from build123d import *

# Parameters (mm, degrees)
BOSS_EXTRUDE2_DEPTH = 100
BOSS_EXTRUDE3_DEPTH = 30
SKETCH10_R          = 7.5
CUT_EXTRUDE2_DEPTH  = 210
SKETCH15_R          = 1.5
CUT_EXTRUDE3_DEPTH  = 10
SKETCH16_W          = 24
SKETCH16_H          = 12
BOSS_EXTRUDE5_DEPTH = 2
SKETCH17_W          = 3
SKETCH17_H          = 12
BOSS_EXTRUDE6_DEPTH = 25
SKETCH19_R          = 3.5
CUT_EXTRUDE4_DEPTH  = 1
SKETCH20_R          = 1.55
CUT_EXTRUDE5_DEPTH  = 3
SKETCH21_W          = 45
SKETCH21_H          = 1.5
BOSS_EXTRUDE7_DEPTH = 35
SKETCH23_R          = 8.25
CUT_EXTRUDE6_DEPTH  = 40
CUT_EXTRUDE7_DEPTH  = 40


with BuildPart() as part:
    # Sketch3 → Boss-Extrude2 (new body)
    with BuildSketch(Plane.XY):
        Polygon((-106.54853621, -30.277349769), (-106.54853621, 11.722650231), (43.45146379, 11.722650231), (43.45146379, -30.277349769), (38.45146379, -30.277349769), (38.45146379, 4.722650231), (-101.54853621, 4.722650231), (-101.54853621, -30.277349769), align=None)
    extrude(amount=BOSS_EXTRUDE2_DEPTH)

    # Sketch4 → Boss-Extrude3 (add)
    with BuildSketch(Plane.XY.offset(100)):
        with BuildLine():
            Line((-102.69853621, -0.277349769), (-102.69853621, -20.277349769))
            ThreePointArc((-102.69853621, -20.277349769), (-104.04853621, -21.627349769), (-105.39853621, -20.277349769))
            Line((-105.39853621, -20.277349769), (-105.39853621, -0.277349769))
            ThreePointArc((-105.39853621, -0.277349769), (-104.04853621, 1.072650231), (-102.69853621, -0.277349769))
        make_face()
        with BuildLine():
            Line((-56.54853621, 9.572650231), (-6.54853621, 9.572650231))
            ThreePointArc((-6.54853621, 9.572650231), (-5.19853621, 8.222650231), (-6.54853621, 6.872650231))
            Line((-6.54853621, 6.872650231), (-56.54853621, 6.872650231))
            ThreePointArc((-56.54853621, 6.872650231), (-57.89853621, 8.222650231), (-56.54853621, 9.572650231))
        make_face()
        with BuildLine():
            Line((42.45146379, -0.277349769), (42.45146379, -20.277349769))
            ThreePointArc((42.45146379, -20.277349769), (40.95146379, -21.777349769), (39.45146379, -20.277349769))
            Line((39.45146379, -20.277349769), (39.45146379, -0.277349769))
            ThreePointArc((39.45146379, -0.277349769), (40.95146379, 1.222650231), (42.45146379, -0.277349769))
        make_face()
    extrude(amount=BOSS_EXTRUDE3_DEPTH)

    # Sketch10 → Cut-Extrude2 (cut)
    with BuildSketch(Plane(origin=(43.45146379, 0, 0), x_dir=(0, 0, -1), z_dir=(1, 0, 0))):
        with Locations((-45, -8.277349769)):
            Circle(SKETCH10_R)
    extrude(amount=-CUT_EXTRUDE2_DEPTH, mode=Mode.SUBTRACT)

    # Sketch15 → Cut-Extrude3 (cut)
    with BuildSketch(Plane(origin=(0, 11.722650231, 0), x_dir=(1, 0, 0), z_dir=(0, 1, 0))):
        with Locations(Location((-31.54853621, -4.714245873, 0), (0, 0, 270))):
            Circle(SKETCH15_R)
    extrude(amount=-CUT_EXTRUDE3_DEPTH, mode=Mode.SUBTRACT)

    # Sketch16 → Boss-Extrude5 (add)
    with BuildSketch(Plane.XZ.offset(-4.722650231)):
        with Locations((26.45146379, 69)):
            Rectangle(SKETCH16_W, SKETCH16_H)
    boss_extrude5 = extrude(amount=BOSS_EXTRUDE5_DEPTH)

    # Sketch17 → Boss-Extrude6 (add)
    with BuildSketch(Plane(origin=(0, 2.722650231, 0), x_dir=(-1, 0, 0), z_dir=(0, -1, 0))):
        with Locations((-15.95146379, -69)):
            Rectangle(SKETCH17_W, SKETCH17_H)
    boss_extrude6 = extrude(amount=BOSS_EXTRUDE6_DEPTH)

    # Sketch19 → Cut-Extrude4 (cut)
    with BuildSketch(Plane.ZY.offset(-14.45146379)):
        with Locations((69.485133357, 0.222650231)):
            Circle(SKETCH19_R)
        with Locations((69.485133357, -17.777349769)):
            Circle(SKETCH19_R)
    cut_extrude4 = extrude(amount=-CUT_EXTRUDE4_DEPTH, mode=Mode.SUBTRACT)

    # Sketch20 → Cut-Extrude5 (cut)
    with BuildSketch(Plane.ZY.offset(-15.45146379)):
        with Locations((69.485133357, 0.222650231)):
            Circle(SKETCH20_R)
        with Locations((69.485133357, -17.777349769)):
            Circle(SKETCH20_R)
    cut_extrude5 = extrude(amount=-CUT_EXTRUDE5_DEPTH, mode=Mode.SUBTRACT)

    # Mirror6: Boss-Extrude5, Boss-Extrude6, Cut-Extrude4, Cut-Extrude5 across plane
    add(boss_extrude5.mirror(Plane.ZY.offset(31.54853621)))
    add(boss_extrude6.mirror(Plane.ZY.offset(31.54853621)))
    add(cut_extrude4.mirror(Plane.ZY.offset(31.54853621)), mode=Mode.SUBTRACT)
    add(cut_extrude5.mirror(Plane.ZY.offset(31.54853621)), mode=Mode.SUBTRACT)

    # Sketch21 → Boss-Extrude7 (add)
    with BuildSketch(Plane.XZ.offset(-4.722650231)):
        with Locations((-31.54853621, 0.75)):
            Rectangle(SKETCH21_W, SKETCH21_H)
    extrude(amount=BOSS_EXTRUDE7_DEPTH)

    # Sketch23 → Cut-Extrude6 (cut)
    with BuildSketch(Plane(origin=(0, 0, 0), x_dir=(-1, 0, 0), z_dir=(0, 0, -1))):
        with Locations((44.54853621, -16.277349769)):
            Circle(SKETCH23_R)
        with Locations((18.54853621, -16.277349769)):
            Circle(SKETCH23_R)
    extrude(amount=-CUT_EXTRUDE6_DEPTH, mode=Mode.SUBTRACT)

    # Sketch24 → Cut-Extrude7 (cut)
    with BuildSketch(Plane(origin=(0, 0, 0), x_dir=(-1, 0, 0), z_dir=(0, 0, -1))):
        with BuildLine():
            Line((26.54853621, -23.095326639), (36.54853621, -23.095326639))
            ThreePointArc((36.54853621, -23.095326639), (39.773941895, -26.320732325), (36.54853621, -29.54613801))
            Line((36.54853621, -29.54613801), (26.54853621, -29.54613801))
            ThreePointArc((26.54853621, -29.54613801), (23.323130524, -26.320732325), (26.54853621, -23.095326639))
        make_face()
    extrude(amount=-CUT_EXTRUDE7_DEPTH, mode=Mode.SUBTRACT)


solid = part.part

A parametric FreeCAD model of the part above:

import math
import FreeCAD as App
import Part
import Sketcher


def add_polygon(sketch, points):
    """Adds a closed chain of lines whose ends are joined by coincident constraints."""
    first, n = sketch.GeometryCount, len(points)
    for a, b in zip(points, points[1:] + points[:1]):
        sketch.addGeometry(Part.LineSegment(App.Vector(*a, 0), App.Vector(*b, 0)), False)
    for i in range(n):
        sketch.addConstraint(Sketcher.Constraint("Coincident", first + i, 2, first + (i + 1) % n, 1))

doc = App.newDocument("Part")
body = doc.addObject("PartDesign::Body", "Body")

sketch1 = body.newObject("Sketcher::SketchObject", "Sketch")
sketch1.AttachmentSupport = (doc.getObject("XY_Plane"), [""])
sketch1.MapMode = "FlatFace"
add_polygon(sketch1, [(-106.548536, 11.72265), (-106.548536, -30.27735), (-101.548536, -30.27735), (-101.548536, 4.72265), (38.451464, 4.72265), (38.451464, -30.27735), (43.451464, -30.27735), (43.451464, 11.72265)])
sketch1.addConstraint(Sketcher.Constraint("Vertical", 0))
sketch1.addConstraint(Sketcher.Constraint("Horizontal", 1))
sketch1.addConstraint(Sketcher.Constraint("Vertical", 2))
sketch1.addConstraint(Sketcher.Constraint("Horizontal", 3))
sketch1.addConstraint(Sketcher.Constraint("Vertical", 4))
sketch1.addConstraint(Sketcher.Constraint("Horizontal", 5))
sketch1.addConstraint(Sketcher.Constraint("Vertical", 6))
sketch1.addConstraint(Sketcher.Constraint("Horizontal", 7))
sketch1.addConstraint(Sketcher.Constraint("Horizontal", 1, 2, 4, 2))
sketch1.addConstraint(Sketcher.Constraint("Equal", 1, 5))
sketch1.addConstraint(Sketcher.Constraint("DistanceX", 1, 1, 1, 2, 5.0))
sketch1.addConstraint(Sketcher.Constraint("DistanceX", 3, 1, 3, 2, 140.0))
sketch1.addConstraint(Sketcher.Constraint("DistanceY", 0, 2, 0, 1, 42.0))
sketch1.addConstraint(Sketcher.Constraint("DistanceY", 2, 1, 2, 2, 35.0))
sketch1.addConstraint(Sketcher.Constraint("DistanceY", 0, 2, -1, 1, 30.27735))
sketch1.addConstraint(Sketcher.Constraint("DistanceX", 0, 2, -1, 1, 106.548536))
pad1 = body.newObject("PartDesign::Pad", "Pad")
pad1.Profile = sketch1
pad1.Length = 100

sketch2 = body.newObject("Sketcher::SketchObject", "Sketch001")
sketch2.AttachmentSupport = (doc.getObject("XY_Plane"), [""])
sketch2.MapMode = "FlatFace"
sketch2.AttachmentOffset = App.Placement(App.Vector(0, 0, 100), App.Rotation())
sketch2.addGeometry(Part.LineSegment(App.Vector(-102.698536, -20.27735, 0), App.Vector(-102.698536, -0.27735, 0)), False)
sketch2.addGeometry(Part.ArcOfCircle(Part.Circle(App.Vector(-104.048536, -0.27735, 0), App.Vector(0, 0, 1), 1.35), math.radians(0), math.radians(180)), False)
sketch2.addGeometry(Part.LineSegment(App.Vector(-105.398536, -0.27735, 0), App.Vector(-105.398536, -20.27735, 0)), False)
sketch2.addGeometry(Part.ArcOfCircle(Part.Circle(App.Vector(-104.048536, -20.27735, 0), App.Vector(0, 0, 1), 1.35), math.radians(180), math.radians(360)), False)
sketch2.addGeometry(Part.LineSegment(App.Vector(-6.548536, 9.57265, 0), App.Vector(-56.548536, 9.57265, 0)), False)
sketch2.addGeometry(Part.ArcOfCircle(Part.Circle(App.Vector(-56.548536, 8.22265, 0), App.Vector(0, 0, 1), 1.35), math.radians(90), math.radians(270)), False)
sketch2.addGeometry(Part.LineSegment(App.Vector(-56.548536, 6.87265, 0), App.Vector(-6.548536, 6.87265, 0)), False)
sketch2.addGeometry(Part.ArcOfCircle(Part.Circle(App.Vector(-6.548536, 8.22265, 0), App.Vector(0, 0, 1), 1.35), math.radians(-90), math.radians(90)), False)
sketch2.addGeometry(Part.LineSegment(App.Vector(42.451464, -20.27735, 0), App.Vector(42.451464, -0.27735, 0)), False)
sketch2.addGeometry(Part.ArcOfCircle(Part.Circle(App.Vector(40.951464, -0.27735, 0), App.Vector(0, 0, 1), 1.5), math.radians(0), math.radians(180)), False)
sketch2.addGeometry(Part.LineSegment(App.Vector(39.451464, -0.27735, 0), App.Vector(39.451464, -20.27735, 0)), False)
sketch2.addGeometry(Part.ArcOfCircle(Part.Circle(App.Vector(40.951464, -20.27735, 0), App.Vector(0, 0, 1), 1.5), math.radians(180), math.radians(360)), False)
sketch2.addConstraint(Sketcher.Constraint("Tangent", 0, 2, 1, 1))
sketch2.addConstraint(Sketcher.Constraint("Tangent", 1, 2, 2, 1))
sketch2.addConstraint(Sketcher.Constraint("Tangent", 2, 2, 3, 1))
sketch2.addConstraint(Sketcher.Constraint("Tangent", 3, 2, 0, 1))
sketch2.addConstraint(Sketcher.Constraint("Tangent", 4, 2, 5, 1))
sketch2.addConstraint(Sketcher.Constraint("Tangent", 5, 2, 6, 1))
sketch2.addConstraint(Sketcher.Constraint("Tangent", 6, 2, 7, 1))
sketch2.addConstraint(Sketcher.Constraint("Tangent", 7, 2, 4, 1))
sketch2.addConstraint(Sketcher.Constraint("Tangent", 8, 2, 9, 1))
sketch2.addConstraint(Sketcher.Constraint("Tangent", 9, 2, 10, 1))
sketch2.addConstraint(Sketcher.Constraint("Tangent", 10, 2, 11, 1))
sketch2.addConstraint(Sketcher.Constraint("Tangent", 11, 2, 8, 1))
sketch2.addConstraint(Sketcher.Constraint("Vertical", 0))
sketch2.addConstraint(Sketcher.Constraint("Vertical", 2))
sketch2.addConstraint(Sketcher.Constraint("Horizontal", 4))
sketch2.addConstraint(Sketcher.Constraint("Horizontal", 6))
sketch2.addConstraint(Sketcher.Constraint("Vertical", 8))
sketch2.addConstraint(Sketcher.Constraint("Vertical", 10))
sketch2.addConstraint(Sketcher.Constraint("Equal", 3, 5))
sketch2.addConstraint(Sketcher.Constraint("Horizontal", 1, 3, 9, 3))
sketch2.addConstraint(Sketcher.Constraint("Horizontal", 3, 3, 11, 3))
sketch2.addConstraint(Sketcher.Constraint("Radius", 9, 1.5))
sketch2.addConstraint(Sketcher.Constraint("DistanceX", 4, 2, 4, 1, 50.0))
sketch2.addConstraint(Sketcher.Constraint("DistanceY", 0, 1, 0, 2, 20.0))
sketch2.addConstraint(Sketcher.Constraint("Radius", 1, 1.35))
sketch2.addConstraint(Sketcher.Constraint("DistanceX", 1, 3, 9, 3, 145.0))
sketch2.addConstraint(Sketcher.Constraint("DistanceX", 6, 2, 8, 2, 49.0))
sketch2.addConstraint(Sketcher.Constraint("DistanceY", 1, 3, 5, 3, 8.5))
sketch2.addConstraint(Sketcher.Constraint("DistanceY", 1, 3, -1, 1, 0.27735))
sketch2.addConstraint(Sketcher.Constraint("DistanceX", 1, 3, -1, 1, 104.048536))
pad2 = body.newObject("PartDesign::Pad", "Pad001")
pad2.Profile = sketch2
pad2.Length = 30

sketch3 = body.newObject("Sketcher::SketchObject", "Sketch002")
sketch3.AttachmentSupport = (doc.getObject("YZ_Plane"), [""])
sketch3.MapMode = "FlatFace"
sketch3.AttachmentOffset = App.Placement(App.Vector(0, 0, 43.451464), App.Rotation())
sketch3.addGeometry(Part.Circle(App.Vector(-8.27735, 45, 0), App.Vector(0, 0, 1), 7.5), False)
sketch3.addConstraint(Sketcher.Constraint("Diameter", 0, 15.0))
sketch3.addConstraint(Sketcher.Constraint("DistanceY", -1, 1, 0, 3, 45.0))
sketch3.addConstraint(Sketcher.Constraint("DistanceX", 0, 3, -1, 1, 8.27735))
pocket1 = body.newObject("PartDesign::Pocket", "Pocket")
pocket1.Profile = sketch3
pocket1.Length = 210

sketch4 = body.newObject("Sketcher::SketchObject", "Sketch003")
sketch4.AttachmentSupport = (doc.getObject("XZ_Plane"), [""])
sketch4.MapMode = "FlatFace"
sketch4.AttachmentOffset = App.Placement(App.Vector(0, 0, -11.72265), App.Rotation())
sketch4.addGeometry(Part.Circle(App.Vector(-31.548536, 4.714246, 0), App.Vector(0, 0, 1), 1.5), False)
sketch4.addConstraint(Sketcher.Constraint("Diameter", 0, 3.0))
sketch4.addConstraint(Sketcher.Constraint("DistanceX", 0, 3, -1, 1, 31.548536))
sketch4.addConstraint(Sketcher.Constraint("DistanceY", -1, 1, 0, 3, 4.714246))
pocket2 = body.newObject("PartDesign::Pocket", "Pocket001")
pocket2.Profile = sketch4
pocket2.Length = 10
pocket2.Reversed = True

sketch5 = body.newObject("Sketcher::SketchObject", "Sketch004")
sketch5.AttachmentSupport = (doc.getObject("XZ_Plane"), [""])
sketch5.MapMode = "FlatFace"
sketch5.AttachmentOffset = App.Placement(App.Vector(0, 0, -4.72265), App.Rotation())
add_polygon(sketch5, [(14.451464, 75), (14.451464, 63), (38.451464, 63), (38.451464, 75)])
sketch5.addConstraint(Sketcher.Constraint("Vertical", 0))
sketch5.addConstraint(Sketcher.Constraint("Horizontal", 1))
sketch5.addConstraint(Sketcher.Constraint("Vertical", 2))
sketch5.addConstraint(Sketcher.Constraint("Horizontal", 3))
sketch5.addConstraint(Sketcher.Constraint("DistanceX", 1, 1, 1, 2, 24.0))
sketch5.addConstraint(Sketcher.Constraint("DistanceY", 0, 2, 0, 1, 12.0))
sketch5.addConstraint(Sketcher.Constraint("DistanceY", -1, 1, 0, 2, 63.0))
sketch5.addConstraint(Sketcher.Constraint("DistanceX", -1, 1, 0, 2, 14.451464))
pad3 = body.newObject("PartDesign::Pad", "Pad002")
pad3.Profile = sketch5
pad3.Length = 2

sketch6 = body.newObject("Sketcher::SketchObject", "Sketch005")
sketch6.AttachmentSupport = (doc.getObject("XZ_Plane"), [""])
sketch6.MapMode = "FlatFace"
sketch6.AttachmentOffset = App.Placement(App.Vector(0, 0, -2.72265), App.Rotation())
add_polygon(sketch6, [(17.451464, 63), (17.451464, 75), (14.451464, 75), (14.451464, 63)])
sketch6.addConstraint(Sketcher.Constraint("Vertical", 0))
sketch6.addConstraint(Sketcher.Constraint("Horizontal", 1))
sketch6.addConstraint(Sketcher.Constraint("Vertical", 2))
sketch6.addConstraint(Sketcher.Constraint("Horizontal", 3))
sketch6.addConstraint(Sketcher.Constraint("DistanceX", 1, 2, 1, 1, 3.0))
sketch6.addConstraint(Sketcher.Constraint("DistanceY", 0, 1, 0, 2, 12.0))
sketch6.addConstraint(Sketcher.Constraint("DistanceY", -1, 1, 0, 2, 75.0))
sketch6.addConstraint(Sketcher.Constraint("DistanceX", -1, 1, 0, 2, 17.451464))
pad4 = body.newObject("PartDesign::Pad", "Pad003")
pad4.Profile = sketch6
pad4.Length = 25

sketch7 = body.newObject("Sketcher::SketchObject", "Sketch006")
sketch7.AttachmentSupport = (doc.getObject("YZ_Plane"), [""])
sketch7.MapMode = "FlatFace"
sketch7.AttachmentOffset = App.Placement(App.Vector(0, 0, 14.451464), App.Rotation())
sketch7.addGeometry(Part.Circle(App.Vector(0.22265, 69.485133, 0), App.Vector(0, 0, 1), 3.5), False)
sketch7.addGeometry(Part.Circle(App.Vector(-17.77735, 69.485133, 0), App.Vector(0, 0, 1), 3.5), False)
sketch7.addConstraint(Sketcher.Constraint("Equal", 0, 1))
sketch7.addConstraint(Sketcher.Constraint("Horizontal", 0, 3, 1, 3))
sketch7.addConstraint(Sketcher.Constraint("Diameter", 0, 7.0))
sketch7.addConstraint(Sketcher.Constraint("DistanceX", 1, 3, 0, 3, 18.0))
sketch7.addConstraint(Sketcher.Constraint("DistanceX", -1, 1, 0, 3, 0.22265))
sketch7.addConstraint(Sketcher.Constraint("DistanceY", -1, 1, 0, 3, 69.485133))
pocket3 = body.newObject("PartDesign::Pocket", "Pocket002")
pocket3.Profile = sketch7
pocket3.Length = 1
pocket3.Reversed = True

sketch8 = body.newObject("Sketcher::SketchObject", "Sketch007")
sketch8.AttachmentSupport = (doc.getObject("YZ_Plane"), [""])
sketch8.MapMode = "FlatFace"
sketch8.AttachmentOffset = App.Placement(App.Vector(0, 0, 15.451464), App.Rotation())
sketch8.addGeometry(Part.Circle(App.Vector(0.22265, 69.485133, 0), App.Vector(0, 0, 1), 1.55), False)
sketch8.addGeometry(Part.Circle(App.Vector(-17.77735, 69.485133, 0), App.Vector(0, 0, 1), 1.55), False)
sketch8.addConstraint(Sketcher.Constraint("Equal", 0, 1))
sketch8.addConstraint(Sketcher.Constraint("Horizontal", 0, 3, 1, 3))
sketch8.addConstraint(Sketcher.Constraint("Diameter", 0, 3.1))
sketch8.addConstraint(Sketcher.Constraint("DistanceX", 1, 3, 0, 3, 18.0))
sketch8.addConstraint(Sketcher.Constraint("DistanceX", -1, 1, 0, 3, 0.22265))
sketch8.addConstraint(Sketcher.Constraint("DistanceY", -1, 1, 0, 3, 69.485133))
pocket4 = body.newObject("PartDesign::Pocket", "Pocket003")
pocket4.Profile = sketch8
pocket4.Length = 3
pocket4.Reversed = True
doc.recompute()

datumplane = body.newObject("PartDesign::Plane", "DatumPlane")
datumplane.AttachmentSupport = (doc.getObject("YZ_Plane"), [""])
datumplane.MapMode = "FlatFace"
datumplane.AttachmentOffset = App.Placement(App.Vector(0, 0, -31.548536), App.Rotation())
mirrored = body.newObject("PartDesign::Mirrored", "Mirrored")
mirrored.Originals = [pad3, pad4, pocket3, pocket4]
mirrored.MirrorPlane = (datumplane, [""])
body.Tip = mirrored

sketch9 = body.newObject("Sketcher::SketchObject", "Sketch008")
sketch9.AttachmentSupport = (doc.getObject("XZ_Plane"), [""])
sketch9.MapMode = "FlatFace"
sketch9.AttachmentOffset = App.Placement(App.Vector(0, 0, -4.72265), App.Rotation())
add_polygon(sketch9, [(-54.048536, 1.5), (-54.048536, 0), (-9.048536, 0), (-9.048536, 1.5)])
sketch9.addConstraint(Sketcher.Constraint("Vertical", 0))
sketch9.addConstraint(Sketcher.Constraint("Horizontal", 1))
sketch9.addConstraint(Sketcher.Constraint("Vertical", 2))
sketch9.addConstraint(Sketcher.Constraint("Horizontal", 3))
sketch9.addConstraint(Sketcher.Constraint("PointOnObject", 0, 2, -1))
sketch9.addConstraint(Sketcher.Constraint("DistanceX", 1, 1, 1, 2, 45.0))
sketch9.addConstraint(Sketcher.Constraint("DistanceY", 0, 2, 0, 1, 1.5))
sketch9.addConstraint(Sketcher.Constraint("DistanceX", 0, 2, -1, 1, 54.048536))
pad5 = body.newObject("PartDesign::Pad", "Pad004")
pad5.Profile = sketch9
pad5.Length = 35

sketch10 = body.newObject("Sketcher::SketchObject", "Sketch009")
sketch10.AttachmentSupport = (doc.getObject("XY_Plane"), [""])
sketch10.MapMode = "FlatFace"
sketch10.addGeometry(Part.Circle(App.Vector(-44.548536, -16.27735, 0), App.Vector(0, 0, 1), 8.25), False)
sketch10.addGeometry(Part.Circle(App.Vector(-18.548536, -16.27735, 0), App.Vector(0, 0, 1), 8.25), False)
sketch10.addConstraint(Sketcher.Constraint("Equal", 0, 1))
sketch10.addConstraint(Sketcher.Constraint("Horizontal", 0, 3, 1, 3))
sketch10.addConstraint(Sketcher.Constraint("Diameter", 0, 16.5))
sketch10.addConstraint(Sketcher.Constraint("DistanceX", 0, 3, 1, 3, 26.0))
sketch10.addConstraint(Sketcher.Constraint("DistanceY", 0, 3, -1, 1, 16.27735))
sketch10.addConstraint(Sketcher.Constraint("DistanceX", 0, 3, -1, 1, 44.548536))
pocket5 = body.newObject("PartDesign::Pocket", "Pocket004")
pocket5.Profile = sketch10
pocket5.Length = 40
pocket5.Reversed = True

sketch11 = body.newObject("Sketcher::SketchObject", "Sketch010")
sketch11.AttachmentSupport = (doc.getObject("XY_Plane"), [""])
sketch11.MapMode = "FlatFace"
sketch11.addGeometry(Part.LineSegment(App.Vector(-36.548536, -23.095327, 0), App.Vector(-26.548536, -23.095327, 0)), False)
sketch11.addGeometry(Part.ArcOfCircle(Part.Circle(App.Vector(-26.548536, -26.320732, 0), App.Vector(0, 0, 1), 3.225406), math.radians(-90), math.radians(90)), False)
sketch11.addGeometry(Part.LineSegment(App.Vector(-26.548536, -29.546138, 0), App.Vector(-36.548536, -29.546138, 0)), False)
sketch11.addGeometry(Part.ArcOfCircle(Part.Circle(App.Vector(-36.548536, -26.320732, 0), App.Vector(0, 0, 1), 3.225406), math.radians(90), math.radians(270)), False)
sketch11.addConstraint(Sketcher.Constraint("Tangent", 0, 2, 1, 2))
sketch11.addConstraint(Sketcher.Constraint("Tangent", 1, 1, 2, 1))
sketch11.addConstraint(Sketcher.Constraint("Tangent", 2, 2, 3, 2))
sketch11.addConstraint(Sketcher.Constraint("Tangent", 3, 1, 0, 1))
sketch11.addConstraint(Sketcher.Constraint("Horizontal", 0))
sketch11.addConstraint(Sketcher.Constraint("Horizontal", 2))
sketch11.addConstraint(Sketcher.Constraint("DistanceX", 0, 1, 0, 2, 10.0))
sketch11.addConstraint(Sketcher.Constraint("Radius", 1, 3.225406))
sketch11.addConstraint(Sketcher.Constraint("DistanceY", 1, 1, -1, 1, 29.546138))
sketch11.addConstraint(Sketcher.Constraint("DistanceX", 1, 3, -1, 1, 26.548536))
pocket6 = body.newObject("PartDesign::Pocket", "Pocket005")
pocket6.Profile = sketch11
pocket6.Length = 40
pocket6.Reversed = True

doc.recompute()
